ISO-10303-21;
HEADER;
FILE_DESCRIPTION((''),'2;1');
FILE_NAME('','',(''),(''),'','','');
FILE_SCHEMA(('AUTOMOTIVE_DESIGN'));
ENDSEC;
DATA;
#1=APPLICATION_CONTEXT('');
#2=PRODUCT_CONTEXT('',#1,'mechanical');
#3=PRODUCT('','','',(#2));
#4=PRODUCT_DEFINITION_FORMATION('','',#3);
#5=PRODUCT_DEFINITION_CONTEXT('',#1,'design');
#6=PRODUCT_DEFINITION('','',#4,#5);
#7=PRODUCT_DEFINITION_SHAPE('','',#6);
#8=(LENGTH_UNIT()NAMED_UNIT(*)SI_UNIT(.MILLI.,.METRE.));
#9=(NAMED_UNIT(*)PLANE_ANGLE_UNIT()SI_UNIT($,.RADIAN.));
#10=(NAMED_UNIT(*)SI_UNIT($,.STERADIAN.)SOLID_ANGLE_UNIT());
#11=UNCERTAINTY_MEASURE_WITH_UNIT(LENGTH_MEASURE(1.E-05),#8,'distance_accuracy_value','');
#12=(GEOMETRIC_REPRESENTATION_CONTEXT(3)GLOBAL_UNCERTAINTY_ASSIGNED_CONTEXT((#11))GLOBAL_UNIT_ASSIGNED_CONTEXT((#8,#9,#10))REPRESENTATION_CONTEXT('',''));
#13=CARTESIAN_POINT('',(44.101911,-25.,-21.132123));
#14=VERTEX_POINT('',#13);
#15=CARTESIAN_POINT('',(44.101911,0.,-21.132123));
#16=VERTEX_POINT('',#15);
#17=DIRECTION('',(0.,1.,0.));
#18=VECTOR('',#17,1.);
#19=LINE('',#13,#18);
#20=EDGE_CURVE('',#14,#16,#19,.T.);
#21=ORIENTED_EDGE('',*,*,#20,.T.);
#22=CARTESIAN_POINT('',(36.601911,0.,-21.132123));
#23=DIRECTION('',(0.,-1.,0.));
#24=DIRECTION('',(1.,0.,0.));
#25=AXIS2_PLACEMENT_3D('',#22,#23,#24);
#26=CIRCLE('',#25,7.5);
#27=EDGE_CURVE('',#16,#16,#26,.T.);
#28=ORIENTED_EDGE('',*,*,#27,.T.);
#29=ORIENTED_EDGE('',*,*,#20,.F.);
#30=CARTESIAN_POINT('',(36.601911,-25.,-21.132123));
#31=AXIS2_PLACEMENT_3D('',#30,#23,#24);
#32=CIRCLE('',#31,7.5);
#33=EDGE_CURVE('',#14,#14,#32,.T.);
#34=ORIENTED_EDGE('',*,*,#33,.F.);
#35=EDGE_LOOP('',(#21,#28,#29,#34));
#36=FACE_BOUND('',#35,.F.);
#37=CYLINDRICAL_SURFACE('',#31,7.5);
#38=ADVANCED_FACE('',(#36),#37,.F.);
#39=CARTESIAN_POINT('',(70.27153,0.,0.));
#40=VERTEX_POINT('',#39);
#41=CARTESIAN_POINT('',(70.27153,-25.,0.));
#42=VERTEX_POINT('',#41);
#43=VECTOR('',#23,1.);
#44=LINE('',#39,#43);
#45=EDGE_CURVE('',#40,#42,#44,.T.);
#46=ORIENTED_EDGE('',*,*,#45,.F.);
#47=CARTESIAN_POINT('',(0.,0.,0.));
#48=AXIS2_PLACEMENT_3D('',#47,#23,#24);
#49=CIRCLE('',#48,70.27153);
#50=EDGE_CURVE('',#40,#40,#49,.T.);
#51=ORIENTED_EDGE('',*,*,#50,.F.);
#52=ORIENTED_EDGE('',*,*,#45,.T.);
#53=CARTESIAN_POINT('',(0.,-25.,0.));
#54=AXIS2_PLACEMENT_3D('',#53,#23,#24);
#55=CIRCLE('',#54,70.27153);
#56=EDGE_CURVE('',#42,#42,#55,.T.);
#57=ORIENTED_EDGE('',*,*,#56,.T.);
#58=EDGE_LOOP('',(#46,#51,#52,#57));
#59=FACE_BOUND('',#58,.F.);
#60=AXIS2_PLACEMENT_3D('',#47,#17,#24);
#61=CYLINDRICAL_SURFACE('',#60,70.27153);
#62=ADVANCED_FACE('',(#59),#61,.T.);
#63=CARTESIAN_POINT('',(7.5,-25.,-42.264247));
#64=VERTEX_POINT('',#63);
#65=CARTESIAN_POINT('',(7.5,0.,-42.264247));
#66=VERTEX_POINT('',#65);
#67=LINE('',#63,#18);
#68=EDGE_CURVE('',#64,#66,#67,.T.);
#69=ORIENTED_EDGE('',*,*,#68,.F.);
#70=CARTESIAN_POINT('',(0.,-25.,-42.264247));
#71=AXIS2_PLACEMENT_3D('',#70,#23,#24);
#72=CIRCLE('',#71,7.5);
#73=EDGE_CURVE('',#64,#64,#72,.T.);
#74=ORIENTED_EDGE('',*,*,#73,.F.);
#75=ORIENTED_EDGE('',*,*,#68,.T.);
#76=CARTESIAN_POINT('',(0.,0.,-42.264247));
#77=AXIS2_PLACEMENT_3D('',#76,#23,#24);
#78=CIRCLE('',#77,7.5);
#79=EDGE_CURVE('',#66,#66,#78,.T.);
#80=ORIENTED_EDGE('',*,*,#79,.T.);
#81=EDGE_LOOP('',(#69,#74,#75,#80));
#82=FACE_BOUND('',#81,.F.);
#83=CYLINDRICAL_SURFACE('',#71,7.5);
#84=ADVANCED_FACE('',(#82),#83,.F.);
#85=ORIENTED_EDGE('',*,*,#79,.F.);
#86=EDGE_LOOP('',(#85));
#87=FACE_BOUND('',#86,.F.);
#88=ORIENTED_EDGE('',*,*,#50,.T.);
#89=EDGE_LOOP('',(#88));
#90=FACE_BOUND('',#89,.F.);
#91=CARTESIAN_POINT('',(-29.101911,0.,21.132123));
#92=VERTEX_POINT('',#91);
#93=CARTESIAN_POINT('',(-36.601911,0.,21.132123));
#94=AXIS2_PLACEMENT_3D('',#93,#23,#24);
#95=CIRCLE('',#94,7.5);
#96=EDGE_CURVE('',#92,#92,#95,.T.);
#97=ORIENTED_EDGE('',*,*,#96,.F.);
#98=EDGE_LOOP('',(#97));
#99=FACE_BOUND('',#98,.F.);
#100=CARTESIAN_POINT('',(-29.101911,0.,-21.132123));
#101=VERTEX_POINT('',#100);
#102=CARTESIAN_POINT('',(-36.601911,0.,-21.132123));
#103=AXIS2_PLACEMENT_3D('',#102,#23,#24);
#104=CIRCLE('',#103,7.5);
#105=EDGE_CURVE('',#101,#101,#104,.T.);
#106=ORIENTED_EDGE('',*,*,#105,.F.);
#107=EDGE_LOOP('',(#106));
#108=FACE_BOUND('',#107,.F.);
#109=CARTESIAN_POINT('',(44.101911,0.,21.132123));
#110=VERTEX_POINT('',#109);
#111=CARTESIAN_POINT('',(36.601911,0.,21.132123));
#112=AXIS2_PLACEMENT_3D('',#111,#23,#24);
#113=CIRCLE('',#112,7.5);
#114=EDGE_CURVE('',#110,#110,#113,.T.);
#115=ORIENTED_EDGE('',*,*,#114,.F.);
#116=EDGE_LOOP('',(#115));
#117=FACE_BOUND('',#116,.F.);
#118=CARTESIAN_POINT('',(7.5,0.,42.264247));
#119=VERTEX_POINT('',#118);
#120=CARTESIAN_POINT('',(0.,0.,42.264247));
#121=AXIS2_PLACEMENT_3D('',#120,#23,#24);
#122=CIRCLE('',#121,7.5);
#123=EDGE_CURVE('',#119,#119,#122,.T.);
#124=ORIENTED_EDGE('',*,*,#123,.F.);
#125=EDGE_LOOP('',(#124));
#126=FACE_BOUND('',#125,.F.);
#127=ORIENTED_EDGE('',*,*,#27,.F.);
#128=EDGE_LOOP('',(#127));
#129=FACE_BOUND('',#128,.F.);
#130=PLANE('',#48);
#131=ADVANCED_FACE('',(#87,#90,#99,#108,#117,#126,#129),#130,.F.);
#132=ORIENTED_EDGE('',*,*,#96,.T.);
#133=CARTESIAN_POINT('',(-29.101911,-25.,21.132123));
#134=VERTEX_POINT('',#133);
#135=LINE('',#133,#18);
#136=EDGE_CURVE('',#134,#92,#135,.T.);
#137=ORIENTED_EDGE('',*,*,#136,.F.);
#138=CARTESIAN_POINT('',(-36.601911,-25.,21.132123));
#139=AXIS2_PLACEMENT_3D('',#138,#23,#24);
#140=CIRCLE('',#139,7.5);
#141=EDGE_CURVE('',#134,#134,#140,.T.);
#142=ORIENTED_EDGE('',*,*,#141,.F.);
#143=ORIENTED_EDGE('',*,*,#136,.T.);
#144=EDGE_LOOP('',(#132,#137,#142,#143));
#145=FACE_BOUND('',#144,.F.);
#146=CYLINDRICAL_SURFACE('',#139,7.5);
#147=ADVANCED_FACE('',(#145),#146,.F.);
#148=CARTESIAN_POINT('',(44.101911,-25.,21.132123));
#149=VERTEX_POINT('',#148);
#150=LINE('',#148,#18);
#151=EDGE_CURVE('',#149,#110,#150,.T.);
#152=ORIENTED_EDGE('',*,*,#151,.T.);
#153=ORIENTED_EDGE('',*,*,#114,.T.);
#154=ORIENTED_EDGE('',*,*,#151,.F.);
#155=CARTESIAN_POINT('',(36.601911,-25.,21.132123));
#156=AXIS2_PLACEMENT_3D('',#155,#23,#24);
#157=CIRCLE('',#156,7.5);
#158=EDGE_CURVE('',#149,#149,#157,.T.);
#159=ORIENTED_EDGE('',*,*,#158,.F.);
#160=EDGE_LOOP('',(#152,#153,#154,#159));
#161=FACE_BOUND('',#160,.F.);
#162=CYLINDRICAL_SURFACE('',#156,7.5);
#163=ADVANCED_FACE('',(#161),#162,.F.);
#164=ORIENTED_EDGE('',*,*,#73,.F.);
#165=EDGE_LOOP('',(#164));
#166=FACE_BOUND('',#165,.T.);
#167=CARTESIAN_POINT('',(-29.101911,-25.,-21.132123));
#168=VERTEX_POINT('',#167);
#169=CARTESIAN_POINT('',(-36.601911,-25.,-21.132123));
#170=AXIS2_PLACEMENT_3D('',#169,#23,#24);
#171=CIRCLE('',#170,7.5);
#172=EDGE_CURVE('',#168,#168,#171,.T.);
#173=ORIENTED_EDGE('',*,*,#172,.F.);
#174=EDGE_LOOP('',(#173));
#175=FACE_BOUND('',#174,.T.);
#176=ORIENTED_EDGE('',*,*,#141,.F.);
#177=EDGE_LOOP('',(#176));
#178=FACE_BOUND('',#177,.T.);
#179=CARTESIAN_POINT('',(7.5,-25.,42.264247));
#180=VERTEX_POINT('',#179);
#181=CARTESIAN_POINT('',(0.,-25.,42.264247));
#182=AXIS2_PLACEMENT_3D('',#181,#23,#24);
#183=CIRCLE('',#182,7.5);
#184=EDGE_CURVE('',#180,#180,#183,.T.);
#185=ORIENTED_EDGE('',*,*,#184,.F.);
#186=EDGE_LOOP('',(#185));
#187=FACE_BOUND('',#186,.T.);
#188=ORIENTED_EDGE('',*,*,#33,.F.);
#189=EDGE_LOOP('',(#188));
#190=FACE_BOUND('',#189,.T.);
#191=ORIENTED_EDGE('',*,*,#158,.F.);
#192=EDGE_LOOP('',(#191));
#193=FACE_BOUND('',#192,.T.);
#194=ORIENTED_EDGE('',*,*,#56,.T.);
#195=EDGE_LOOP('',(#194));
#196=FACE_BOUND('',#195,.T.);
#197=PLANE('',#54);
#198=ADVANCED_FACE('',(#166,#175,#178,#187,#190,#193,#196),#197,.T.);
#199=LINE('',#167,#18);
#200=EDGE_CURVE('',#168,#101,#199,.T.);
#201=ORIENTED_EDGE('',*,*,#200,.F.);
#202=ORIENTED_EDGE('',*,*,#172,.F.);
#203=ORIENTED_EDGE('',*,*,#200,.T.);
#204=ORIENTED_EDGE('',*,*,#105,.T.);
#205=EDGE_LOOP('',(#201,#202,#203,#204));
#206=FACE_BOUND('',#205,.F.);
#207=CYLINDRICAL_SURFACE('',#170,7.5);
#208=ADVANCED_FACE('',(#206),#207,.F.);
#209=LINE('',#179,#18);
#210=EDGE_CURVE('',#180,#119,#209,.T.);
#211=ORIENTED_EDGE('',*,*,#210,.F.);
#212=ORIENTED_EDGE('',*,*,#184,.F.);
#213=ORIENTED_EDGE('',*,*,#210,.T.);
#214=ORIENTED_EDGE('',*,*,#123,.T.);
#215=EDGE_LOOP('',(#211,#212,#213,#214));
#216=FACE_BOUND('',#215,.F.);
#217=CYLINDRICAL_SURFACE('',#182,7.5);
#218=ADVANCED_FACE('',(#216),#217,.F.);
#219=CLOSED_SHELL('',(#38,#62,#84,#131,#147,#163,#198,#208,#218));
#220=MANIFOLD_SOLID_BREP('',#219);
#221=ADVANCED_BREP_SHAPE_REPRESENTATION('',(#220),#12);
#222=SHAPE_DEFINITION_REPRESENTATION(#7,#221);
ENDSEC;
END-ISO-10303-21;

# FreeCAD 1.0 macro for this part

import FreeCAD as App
import Part
import Sketcher
Q = App.Units.Quantity

doc = App.newDocument("Part")
body = doc.addObject("PartDesign::Body", "Body")

# Sketch on XZ plane
sketch1 = body.newObject("Sketcher::SketchObject", "Sketch")
sketch1.AttachmentSupport = (doc.getObject("XZ_Plane"), [""])
sketch1.MapMode = "FlatFace"
sketch1.addGeometry(Part.Circle(App.Vector(0, 0, 0), App.Vector(0, 0, 1), 70), False)
sketch1.addConstraint([
    Sketcher.Constraint("Coincident", 0, 3, -1, 1),
    Sketcher.Constraint("Diameter", 0, Q("140.54306 mm")),
])
pad1 = body.newObject("PartDesign::Pad", "Pad")
pad1.Profile = sketch1
pad1.Length = 25

# Sketch on XZ plane
sketch2 = body.newObject("Sketcher::SketchObject", "Sketch001")
sketch2.AttachmentSupport = (doc.getObject("XZ_Plane"), [""])
sketch2.MapMode = "FlatFace"
sketch2.AttachmentOffset = App.Placement(App.Vector(0, 0, 25), App.Rotation())
sketch2.addGeometry([
    Part.Circle(App.Vector(0, 42, 0), App.Vector(0, 0, 1), 8),  # 0
    Part.Circle(App.Vector(-37, 21, 0), App.Vector(0, 0, 1), 8),  # 1
    Part.Circle(App.Vector(-37, -21, 0), App.Vector(0, 0, 1), 8),  # 2
    Part.Circle(App.Vector(0, -42, 0), App.Vector(0, 0, 1), 8),  # 3
    Part.Circle(App.Vector(37, -21, 0), App.Vector(0, 0, 1), 8),  # 4
    Part.Circle(App.Vector(37, 21, 0), App.Vector(0, 0, 1), 8),  # 5
], False)
sketch2.addConstraint([
    Sketcher.Constraint("Equal", 0, 1),
    Sketcher.Constraint("Equal", 1, 2),
    Sketcher.Constraint("Equal", 2, 3),
    Sketcher.Constraint("Equal", 3, 4),
    Sketcher.Constraint("Equal", 4, 5),
    Sketcher.Constraint("Symmetric", 0, 3, 3, 3, -1, 1),
    Sketcher.Constraint("Symmetric", 1, 3, 4, 3, -1, 1),
    Sketcher.Constraint("Symmetric", 2, 3, 5, 3, -1, 1),
    Sketcher.Constraint("Symmetric", 2, 3, 4, 3, -2),
    Sketcher.Constraint("PointOnObject", 0, 3, -2),
    Sketcher.Constraint("Diameter", 0, Q("15 mm")),
    Sketcher.Constraint("DistanceX", 1, 3, -1, 1, Q("36.601911 mm")),
    Sketcher.Constraint("DistanceY", 2, 3, 0, 3, Q("63.39637 mm")),
    Sketcher.Constraint("DistanceY", -1, 1, 0, 3, Q("42.264247 mm")),
])
pocket1 = body.newObject("PartDesign::Pocket", "Pocket")
pocket1.Profile = sketch2
pocket1.Length = 25

doc.recompute()
